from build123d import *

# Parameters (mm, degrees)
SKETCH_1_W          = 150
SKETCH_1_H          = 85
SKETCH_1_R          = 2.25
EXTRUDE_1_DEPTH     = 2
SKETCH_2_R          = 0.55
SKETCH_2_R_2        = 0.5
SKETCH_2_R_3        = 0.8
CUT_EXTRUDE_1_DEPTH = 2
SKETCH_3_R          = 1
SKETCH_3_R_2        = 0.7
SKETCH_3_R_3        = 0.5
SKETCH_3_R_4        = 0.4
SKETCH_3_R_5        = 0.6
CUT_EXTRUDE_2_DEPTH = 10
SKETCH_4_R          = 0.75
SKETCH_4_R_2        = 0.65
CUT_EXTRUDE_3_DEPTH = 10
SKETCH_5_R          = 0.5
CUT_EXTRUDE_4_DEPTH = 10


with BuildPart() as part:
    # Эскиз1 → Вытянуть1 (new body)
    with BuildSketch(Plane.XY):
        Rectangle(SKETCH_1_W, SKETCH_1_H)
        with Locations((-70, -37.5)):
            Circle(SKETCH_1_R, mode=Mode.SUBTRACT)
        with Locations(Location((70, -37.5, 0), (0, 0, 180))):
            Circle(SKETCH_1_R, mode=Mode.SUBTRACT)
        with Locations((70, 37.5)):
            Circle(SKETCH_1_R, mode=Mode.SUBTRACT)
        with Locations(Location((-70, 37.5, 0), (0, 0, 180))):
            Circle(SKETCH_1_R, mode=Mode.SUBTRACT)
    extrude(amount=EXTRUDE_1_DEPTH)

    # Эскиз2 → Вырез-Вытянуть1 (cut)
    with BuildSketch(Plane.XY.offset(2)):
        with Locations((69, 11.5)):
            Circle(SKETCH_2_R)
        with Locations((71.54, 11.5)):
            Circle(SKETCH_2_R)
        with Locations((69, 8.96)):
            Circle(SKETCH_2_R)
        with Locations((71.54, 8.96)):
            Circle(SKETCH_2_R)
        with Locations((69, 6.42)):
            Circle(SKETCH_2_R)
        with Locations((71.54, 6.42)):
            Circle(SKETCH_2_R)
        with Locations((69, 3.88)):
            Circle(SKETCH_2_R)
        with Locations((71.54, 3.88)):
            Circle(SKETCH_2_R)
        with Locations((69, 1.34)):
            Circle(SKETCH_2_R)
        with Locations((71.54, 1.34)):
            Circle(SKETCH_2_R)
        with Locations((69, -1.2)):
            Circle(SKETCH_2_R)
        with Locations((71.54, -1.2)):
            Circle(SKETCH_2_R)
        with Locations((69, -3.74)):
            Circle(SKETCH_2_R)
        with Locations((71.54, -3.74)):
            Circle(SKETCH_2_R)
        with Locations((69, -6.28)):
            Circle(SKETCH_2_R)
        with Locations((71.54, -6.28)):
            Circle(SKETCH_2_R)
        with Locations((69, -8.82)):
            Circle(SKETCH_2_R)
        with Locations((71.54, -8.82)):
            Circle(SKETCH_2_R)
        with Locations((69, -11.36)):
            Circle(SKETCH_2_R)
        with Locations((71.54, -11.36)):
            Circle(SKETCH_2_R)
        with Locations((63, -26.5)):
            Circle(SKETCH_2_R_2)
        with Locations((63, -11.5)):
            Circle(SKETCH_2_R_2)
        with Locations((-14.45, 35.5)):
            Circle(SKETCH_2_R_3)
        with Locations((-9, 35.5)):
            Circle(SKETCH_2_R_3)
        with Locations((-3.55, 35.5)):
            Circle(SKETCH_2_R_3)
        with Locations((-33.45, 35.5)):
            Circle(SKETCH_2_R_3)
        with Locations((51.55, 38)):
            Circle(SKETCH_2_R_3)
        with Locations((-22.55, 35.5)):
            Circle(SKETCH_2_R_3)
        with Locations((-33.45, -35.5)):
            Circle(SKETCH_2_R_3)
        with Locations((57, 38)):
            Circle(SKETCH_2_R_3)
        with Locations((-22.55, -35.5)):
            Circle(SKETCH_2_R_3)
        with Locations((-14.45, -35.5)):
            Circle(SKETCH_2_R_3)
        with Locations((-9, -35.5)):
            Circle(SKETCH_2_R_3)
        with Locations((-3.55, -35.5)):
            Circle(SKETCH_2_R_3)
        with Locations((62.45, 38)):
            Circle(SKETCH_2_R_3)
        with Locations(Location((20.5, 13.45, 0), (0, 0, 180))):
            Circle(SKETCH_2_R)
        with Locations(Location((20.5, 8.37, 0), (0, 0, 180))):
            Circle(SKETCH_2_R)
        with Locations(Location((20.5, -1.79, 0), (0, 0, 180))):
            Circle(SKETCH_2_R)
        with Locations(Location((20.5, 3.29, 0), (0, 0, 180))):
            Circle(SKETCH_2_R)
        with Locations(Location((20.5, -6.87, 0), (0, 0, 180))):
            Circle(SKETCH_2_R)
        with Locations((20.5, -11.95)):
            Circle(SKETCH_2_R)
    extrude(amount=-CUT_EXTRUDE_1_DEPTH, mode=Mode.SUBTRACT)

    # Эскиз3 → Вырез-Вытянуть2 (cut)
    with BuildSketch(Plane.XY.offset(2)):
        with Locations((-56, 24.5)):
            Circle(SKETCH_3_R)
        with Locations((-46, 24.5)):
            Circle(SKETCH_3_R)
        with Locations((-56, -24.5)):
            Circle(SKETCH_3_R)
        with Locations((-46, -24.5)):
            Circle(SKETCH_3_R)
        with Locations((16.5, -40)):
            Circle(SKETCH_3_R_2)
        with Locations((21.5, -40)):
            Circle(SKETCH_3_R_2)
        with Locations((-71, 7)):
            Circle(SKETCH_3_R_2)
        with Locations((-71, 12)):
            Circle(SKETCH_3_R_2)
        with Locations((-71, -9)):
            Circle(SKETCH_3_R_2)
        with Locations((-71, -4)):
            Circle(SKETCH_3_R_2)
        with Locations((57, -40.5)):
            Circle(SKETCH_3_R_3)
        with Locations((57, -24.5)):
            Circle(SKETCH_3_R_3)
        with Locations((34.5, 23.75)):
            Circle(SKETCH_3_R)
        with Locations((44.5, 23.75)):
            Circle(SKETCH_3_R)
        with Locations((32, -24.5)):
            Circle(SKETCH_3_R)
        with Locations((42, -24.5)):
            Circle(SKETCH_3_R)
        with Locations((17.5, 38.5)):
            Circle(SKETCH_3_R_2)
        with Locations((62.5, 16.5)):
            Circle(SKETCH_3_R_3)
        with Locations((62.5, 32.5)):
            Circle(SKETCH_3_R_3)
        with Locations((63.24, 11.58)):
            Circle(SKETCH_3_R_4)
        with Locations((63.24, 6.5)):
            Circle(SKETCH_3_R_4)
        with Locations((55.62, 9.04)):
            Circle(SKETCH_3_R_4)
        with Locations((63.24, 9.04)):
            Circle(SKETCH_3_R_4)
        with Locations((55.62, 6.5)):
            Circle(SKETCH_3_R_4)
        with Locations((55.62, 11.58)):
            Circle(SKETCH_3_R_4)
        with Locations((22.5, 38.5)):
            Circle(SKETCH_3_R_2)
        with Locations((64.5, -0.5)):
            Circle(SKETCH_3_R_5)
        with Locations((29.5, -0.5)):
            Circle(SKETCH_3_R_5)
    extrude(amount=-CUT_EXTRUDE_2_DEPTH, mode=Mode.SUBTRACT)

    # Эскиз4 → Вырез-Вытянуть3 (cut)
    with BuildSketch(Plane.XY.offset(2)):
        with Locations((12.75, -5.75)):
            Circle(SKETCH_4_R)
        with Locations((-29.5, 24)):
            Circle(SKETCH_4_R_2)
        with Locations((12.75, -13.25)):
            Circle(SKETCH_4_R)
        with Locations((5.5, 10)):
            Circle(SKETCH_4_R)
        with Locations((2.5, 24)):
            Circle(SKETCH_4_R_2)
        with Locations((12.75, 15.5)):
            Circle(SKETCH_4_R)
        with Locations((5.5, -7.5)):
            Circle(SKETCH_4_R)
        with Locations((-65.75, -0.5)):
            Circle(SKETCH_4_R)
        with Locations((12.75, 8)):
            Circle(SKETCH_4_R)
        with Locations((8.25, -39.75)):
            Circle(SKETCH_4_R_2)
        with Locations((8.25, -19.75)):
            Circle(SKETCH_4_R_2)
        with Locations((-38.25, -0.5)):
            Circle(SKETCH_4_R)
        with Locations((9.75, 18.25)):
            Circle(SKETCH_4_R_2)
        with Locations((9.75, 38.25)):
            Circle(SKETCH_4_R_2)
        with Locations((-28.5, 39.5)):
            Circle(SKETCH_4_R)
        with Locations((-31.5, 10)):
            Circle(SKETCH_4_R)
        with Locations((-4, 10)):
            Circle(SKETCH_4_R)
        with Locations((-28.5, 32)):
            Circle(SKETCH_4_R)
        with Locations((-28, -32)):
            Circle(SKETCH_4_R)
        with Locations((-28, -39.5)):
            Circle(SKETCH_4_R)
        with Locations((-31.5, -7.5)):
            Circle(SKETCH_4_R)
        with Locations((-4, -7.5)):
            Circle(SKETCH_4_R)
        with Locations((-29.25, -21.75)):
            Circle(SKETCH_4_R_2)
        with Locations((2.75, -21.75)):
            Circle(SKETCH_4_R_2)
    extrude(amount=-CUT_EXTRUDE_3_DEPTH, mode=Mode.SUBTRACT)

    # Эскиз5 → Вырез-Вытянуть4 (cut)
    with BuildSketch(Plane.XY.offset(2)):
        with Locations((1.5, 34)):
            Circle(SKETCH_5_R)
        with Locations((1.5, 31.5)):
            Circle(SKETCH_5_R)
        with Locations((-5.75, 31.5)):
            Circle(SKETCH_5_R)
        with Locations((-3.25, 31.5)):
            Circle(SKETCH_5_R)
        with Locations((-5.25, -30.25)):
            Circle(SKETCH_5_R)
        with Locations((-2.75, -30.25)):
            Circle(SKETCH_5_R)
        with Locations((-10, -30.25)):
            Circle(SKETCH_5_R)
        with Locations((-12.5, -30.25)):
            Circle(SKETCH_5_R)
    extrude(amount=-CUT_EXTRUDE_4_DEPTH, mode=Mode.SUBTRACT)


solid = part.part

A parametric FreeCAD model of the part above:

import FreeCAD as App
import Part
import Sketcher
from FreeCAD import Vector
Q = App.Units.Quantity


def add_polygon(sketch, points):
    """Adds a closed chain of lines whose ends are joined by coincident constraints."""
    first, n = sketch.GeometryCount, len(points)
    for a, b in zip(points, points[1:] + points[:1]):
        sketch.addGeometry(Part.LineSegment(App.Vector(*a, 0), App.Vector(*b, 0)), False)
    for i in range(n):
        sketch.addConstraint(Sketcher.Constraint("Coincident", first + i, 2, first + (i + 1) % n, 1))

doc = App.newDocument("Part")
params = doc.addObject("Spreadsheet::Sheet", "Params")
for row, (alias, value) in enumerate([
    ("sketch1_diameter", "4.5 mm"),
    ("sketch1_width", "150 mm"),
    ("sketch1_height", "85 mm"),
    ("pad1_length", "2 mm"),
    ("sketch2_diameter", "1 mm"),
    ("sketch2_diameter2", "1.1 mm"),
    ("sketch2_diameter3", "1.6 mm"),
    ("pocket1_length", "2 mm"),
    ("sketch3_diameter", "2 mm"),
    ("sketch3_diameter2", "1 mm"),
    ("sketch3_diameter3", "1.4 mm"),
    ("sketch3_diameter4", "0.8 mm"),
    ("sketch3_diameter5", "1.2 mm"),
    ("pocket2_length", "10 mm"),
    ("sketch4_diameter", "1.5 mm"),
    ("sketch4_diameter2", "1.3 mm"),
    ("pocket3_length", "10 mm"),
    ("sketch5_diameter", "1 mm"),
    ("pocket4_length", "10 mm"),
], start=1):
    params.set(f"A{row}", alias)
    params.set(f"B{row}", "=" + value)
    params.setAlias(f"B{row}", alias)

body = doc.addObject("PartDesign::Body", "Body")

sketch1 = body.newObject("Sketcher::SketchObject", "Sketch")
sketch1.AttachmentSupport = (doc.getObject("XY_Plane"), [""])
sketch1.MapMode = "FlatFace"
add_polygon(sketch1, [(-75, 42.5), (-75, -42.5), (75, -42.5), (75, 42.5)])
sketch1.addGeometry(Part.Circle(Vector(-70, -37.5, 0), Vector(0, 0, 1), 2.2), False)
sketch1.addGeometry(Part.Circle(Vector(70, -37.5, 0), Vector(0, 0, 1), 2.2), False)
sketch1.addGeometry(Part.Circle(Vector(-70, 37.5, 0), Vector(0, 0, 1), 2.2), False)
sketch1.addGeometry(Part.Circle(Vector(70, 37.5, 0), Vector(0, 0, 1), 2.2), False)
sketch1.addConstraint(Sketcher.Constraint("Vertical", 0))
sketch1.addConstraint(Sketcher.Constraint("Horizontal", 1))
sketch1.addConstraint(Sketcher.Constraint("Vertical", 2))
sketch1.addConstraint(Sketcher.Constraint("Horizontal", 3))
sketch1.addConstraint(Sketcher.Constraint("Equal", 4, 5))
sketch1.addConstraint(Sketcher.Constraint("Equal", 5, 6))
sketch1.addConstraint(Sketcher.Constraint("Equal", 6, 7))
sketch1.addConstraint(Sketcher.Constraint("Symmetric", 5, 3, 6, 3, -1, 1))
sketch1.addConstraint(Sketcher.Constraint("Symmetric", 4, 3, 7, 3, -1, 1))
sketch1.addConstraint(Sketcher.Constraint("Symmetric", 0, 2, 2, 2, -1, 1))
sketch1.addConstraint(Sketcher.Constraint("Symmetric", 4, 3, 5, 3, -2))
sketch1.addConstraint(Sketcher.Constraint("Diameter", 4, Q("4.5 mm")))
sketch1.addConstraint(Sketcher.Constraint("DistanceX", 1, 1, 1, 2, Q("150 mm")))
sketch1.addConstraint(Sketcher.Constraint("DistanceY", 0, 2, 0, 1, Q("85 mm")))
sketch1.addConstraint(Sketcher.Constraint("DistanceX", 4, 3, -1, 1, Q("70 mm")))
sketch1.addConstraint(Sketcher.Constraint("DistanceY", 4, 3, 6, 3, Q("75 mm")))
sketch1.setExpression("Constraints[15]", "Params.sketch1_diameter")
sketch1.setExpression("Constraints[16]", "Params.sketch1_width")
sketch1.setExpression("Constraints[17]", "Params.sketch1_height")
pad1 = body.newObject("PartDesign::Pad", "Pad")
pad1.Profile = sketch1
pad1.setExpression("Length", "Params.pad1_length")

sketch2 = body.newObject("Sketcher::SketchObject", "Sketch001")
sketch2.AttachmentSupport = (doc.getObject("XY_Plane"), [""])
sketch2.MapMode = "FlatFace"
sketch2.AttachmentOffset = App.Placement(Vector(0, 0, 2), App.Rotation())
sketch2.addGeometry(Part.Circle(Vector(69, 11.5, 0), Vector(0, 0, 1), 0.6), False)
sketch2.addGeometry(Part.Circle(Vector(71.5, 11.5, 0), Vector(0, 0, 1), 0.6), False)
sketch2.addGeometry(Part.Circle(Vector(69, 9, 0), Vector(0, 0, 1), 0.6), False)
sketch2.addGeometry(Part.Circle(Vector(71.5, 9, 0), Vector(0, 0, 1), 0.6), False)
sketch2.addGeometry(Part.Circle(Vector(69, 6.4, 0), Vector(0, 0, 1), 0.6), False)
sketch2.addGeometry(Part.Circle(Vector(71.5, 6.4, 0), Vector(0, 0, 1), 0.6), False)
sketch2.addGeometry(Part.Circle(Vector(69, 3.9, 0), Vector(0, 0, 1), 0.6), False)
sketch2.addGeometry(Part.Circle(Vector(71.5, 3.9, 0), Vector(0, 0, 1), 0.6), False)
sketch2.addGeometry(Part.Circle(Vector(69, 1.3, 0), Vector(0, 0, 1), 0.6), False)
sketch2.addGeometry(Part.Circle(Vector(71.5, 1.3, 0), Vector(0, 0, 1), 0.6), False)
sketch2.addGeometry(Part.Circle(Vector(69, -1.2, 0), Vector(0, 0, 1), 0.6), False)
sketch2.addGeometry(Part.Circle(Vector(71.5, -1.2, 0), Vector(0, 0, 1), 0.6), False)
sketch2.addGeometry(Part.Circle(Vector(69, -3.7, 0), Vector(0, 0, 1), 0.6), False)
sketch2.addGeometry(Part.Circle(Vector(71.5, -3.7, 0), Vector(0, 0, 1), 0.6), False)
sketch2.addGeometry(Part.Circle(Vector(69, -6.3, 0), Vector(0, 0, 1), 0.6), False)
sketch2.addGeometry(Part.Circle(Vector(71.5, -6.3, 0), Vector(0, 0, 1), 0.6), False)
sketch2.addGeometry(Part.Circle(Vector(69, -8.8, 0), Vector(0, 0, 1), 0.6), False)
sketch2.addGeometry(Part.Circle(Vector(71.5, -8.8, 0), Vector(0, 0, 1), 0.6), False)
sketch2.addGeometry(Part.Circle(Vector(69, -11.4, 0), Vector(0, 0, 1), 0.6), False)
sketch2.addGeometry(Part.Circle(Vector(71.5, -11.4, 0), Vector(0, 0, 1), 0.6), False)
sketch2.addGeometry(Part.Circle(Vector(63, -26.5, 0), Vector(0, 0, 1), 0.5), False)
sketch2.addGeometry(Part.Circle(Vector(63, -11.5, 0), Vector(0, 0, 1), 0.5), False)
sketch2.addGeometry(Part.Circle(Vector(-14.4, 35.5, 0), Vector(0, 0, 1), 0.8), False)
sketch2.addGeometry(Part.Circle(Vector(-9, 35.5, 0), Vector(0, 0, 1), 0.8), False)
sketch2.addGeometry(Part.Circle(Vector(-3.5, 35.5, 0), Vector(0, 0, 1), 0.8), False)
sketch2.addGeometry(Part.Circle(Vector(-33.5, 35.5, 0), Vector(0, 0, 1), 0.8), False)
sketch2.addGeometry(Part.Circle(Vector(51.5, 38, 0), Vector(0, 0, 1), 0.8), False)
sketch2.addGeometry(Part.Circle(Vector(-22.6, 35.5, 0), Vector(0, 0, 1), 0.8), False)
sketch2.addGeometry(Part.Circle(Vector(-33.5, -35.5, 0), Vector(0, 0, 1), 0.8), False)
sketch2.addGeometry(Part.Circle(Vector(57, 38, 0), Vector(0, 0, 1), 0.8), False)
sketch2.addGeometry(Part.Circle(Vector(-22.6, -35.5, 0), Vector(0, 0, 1), 0.8), False)
sketch2.addGeometry(Part.Circle(Vector(-14.4, -35.5, 0), Vector(0, 0, 1), 0.8), False)
sketch2.addGeometry(Part.Circle(Vector(-9, -35.5, 0), Vector(0, 0, 1), 0.8), False)
sketch2.addGeometry(Part.Circle(Vector(-3.5, -35.5, 0), Vector(0, 0, 1), 0.8), False)
sketch2.addGeometry(Part.Circle(Vector(62.5, 38, 0), Vector(0, 0, 1), 0.8), False)
sketch2.addGeometry(Part.Circle(Vector(20.5, 13.4, 0), Vector(0, 0, 1), 0.6), False)
sketch2.addGeometry(Part.Circle(Vector(20.5, 8.4, 0), Vector(0, 0, 1), 0.6), False)
sketch2.addGeometry(Part.Circle(Vector(20.5, -1.8, 0), Vector(0, 0, 1), 0.6), False)
sketch2.addGeometry(Part.Circle(Vector(20.5, 3.3, 0), Vector(0, 0, 1), 0.6), False)
sketch2.addGeometry(Part.Circle(Vector(20.5, -6.9, 0), Vector(0, 0, 1), 0.6), False)
sketch2.addGeometry(Part.Circle(Vector(20.5, -11.9, 0), Vector(0, 0, 1), 0.6), False)
sketch2.addConstraint(Sketcher.Constraint("Equal", 0, 1))
sketch2.addConstraint(Sketcher.Constraint("Equal", 1, 2))
sketch2.addConstraint(Sketcher.Constraint("Equal", 2, 3))
sketch2.addConstraint(Sketcher.Constraint("Equal", 3, 4))
sketch2.addConstraint(Sketcher.Constraint("Equal", 4, 5))
sketch2.addConstraint(Sketcher.Constraint("Equal", 5, 6))
sketch2.addConstraint(Sketcher.Constraint("Equal", 6, 7))
sketch2.addConstraint(Sketcher.Constraint("Equal", 7, 8))
sketch2.addConstraint(Sketcher.Constraint("Equal", 8, 9))
sketch2.addConstraint(Sketcher.Constraint("Equal", 9, 10))
sketch2.addConstraint(Sketcher.Constraint("Equal", 10, 11))
sketch2.addConstraint(Sketcher.Constraint("Equal", 11, 12))
sketch2.addConstraint(Sketcher.Constraint("Equal", 12, 13))
sketch2.addConstraint(Sketcher.Constraint("Equal", 13, 14))
sketch2.addConstraint(Sketcher.Constraint("Equal", 14, 15))
sketch2.addConstraint(Sketcher.Constraint("Equal", 15, 16))
sketch2.addConstraint(Sketcher.Constraint("Equal", 16, 17))
sketch2.addConstraint(Sketcher.Constraint("Equal", 17, 18))
sketch2.addConstraint(Sketcher.Constraint("Equal", 18, 19))
sketch2.addConstraint(Sketcher.Constraint("Equal", 20, 21))
sketch2.addConstraint(Sketcher.Constraint("Equal", 22, 23))
sketch2.addConstraint(Sketcher.Constraint("Equal", 23, 24))
sketch2.addConstraint(Sketcher.Constraint("Equal", 24, 25))
sketch2.addConstraint(Sketcher.Constraint("Equal", 25, 26))
sketch2.addConstraint(Sketcher.Constraint("Equal", 26, 27))
sketch2.addConstraint(Sketcher.Constraint("Equal", 27, 28))
sketch2.addConstraint(Sketcher.Constraint("Equal", 28, 29))
sketch2.addConstraint(Sketcher.Constraint("Equal", 29, 30))
sketch2.addConstraint(Sketcher.Constraint("Equal", 30, 31))
sketch2.addConstraint(Sketcher.Constraint("Equal", 31, 32))
sketch2.addConstraint(Sketcher.Constraint("Equal", 32, 33))
sketch2.addConstraint(Sketcher.Constraint("Equal", 33, 34))
sketch2.addConstraint(Sketcher.Constraint("Equal", 19, 35))
sketch2.addConstraint(Sketcher.Constraint("Equal", 35, 36))
sketch2.addConstraint(Sketcher.Constraint("Equal", 36, 37))
sketch2.addConstraint(Sketcher.Constraint("Equal", 37, 38))
sketch2.addConstraint(Sketcher.Constraint("Equal", 38, 39))
sketch2.addConstraint(Sketcher.Constraint("Equal", 39, 40))
sketch2.addConstraint(Sketcher.Constraint("Symmetric", 25, 3, 28, 3, -1))
sketch2.addConstraint(Sketcher.Constraint("Symmetric", 27, 3, 30, 3, -1))
sketch2.addConstraint(Sketcher.Constraint("Symmetric", 22, 3, 31, 3, -1))
sketch2.addConstraint(Sketcher.Constraint("Symmetric", 23, 3, 32, 3, -1))
sketch2.addConstraint(Sketcher.Constraint("Symmetric", 24, 3, 33, 3, -1))
sketch2.addConstraint(Sketcher.Constraint("Horizontal", 0, 3, 1, 3))
sketch2.addConstraint(Sketcher.Constraint("Horizontal", 2, 3, 3, 3))
sketch2.addConstraint(Sketcher.Constraint("Horizontal", 4, 3, 5, 3))
sketch2.addConstraint(Sketcher.Constraint("Horizontal", 6, 3, 7, 3))
sketch2.addConstraint(Sketcher.Constraint("Horizontal", 8, 3, 9, 3))
sketch2.addConstraint(Sketcher.Constraint("Horizontal", 10, 3, 11, 3))
sketch2.addConstraint(Sketcher.Constraint("Horizontal", 12, 3, 13, 3))
sketch2.addConstraint(Sketcher.Constraint("Horizontal", 14, 3, 15, 3))
sketch2.addConstraint(Sketcher.Constraint("Horizontal", 16, 3, 17, 3))
sketch2.addConstraint(Sketcher.Constraint("Horizontal", 18, 3, 19, 3))
sketch2.addConstraint(Sketcher.Constraint("Horizontal", 22, 3, 23, 3))
sketch2.addConstraint(Sketcher.Constraint("Horizontal", 23, 3, 24, 3))
sketch2.addConstraint(Sketcher.Constraint("Horizontal", 24, 3, 25, 3))
sketch2.addConstraint(Sketcher.Constraint("Horizontal", 25, 3, 27, 3))
sketch2.addConstraint(Sketcher.Constraint("Horizontal", 26, 3, 29, 3))
sketch2.addConstraint(Sketcher.Constraint("Horizontal", 29, 3, 34, 3))
sketch2.addConstraint(Sketcher.Constraint("Vertical", 0, 3, 2, 3))
sketch2.addConstraint(Sketcher.Constraint("Vertical", 1, 3, 3, 3))
sketch2.addConstraint(Sketcher.Constraint("Vertical", 2, 3, 4, 3))
sketch2.addConstraint(Sketcher.Constraint("Vertical", 3, 3, 5, 3))
sketch2.addConstraint(Sketcher.Constraint("Vertical", 4, 3, 6, 3))
sketch2.addConstraint(Sketcher.Constraint("Vertical", 5, 3, 7, 3))
sketch2.addConstraint(Sketcher.Constraint("Vertical", 6, 3, 8, 3))
sketch2.addConstraint(Sketcher.Constraint("Vertical", 7, 3, 9, 3))
sketch2.addConstraint(Sketcher.Constraint("Vertical", 8, 3, 10, 3))
sketch2.addConstraint(Sketcher.Constraint("Vertical", 9, 3, 11, 3))
sketch2.addConstraint(Sketcher.Constraint("Vertical", 10, 3, 12, 3))
sketch2.addConstraint(Sketcher.Constraint("Vertical", 11, 3, 13, 3))
sketch2.addConstraint(Sketcher.Constraint("Vertical", 12, 3, 14, 3))
sketch2.addConstraint(Sketcher.Constraint("Vertical", 13, 3, 15, 3))
sketch2.addConstraint(Sketcher.Constraint("Vertical", 14, 3, 16, 3))
sketch2.addConstraint(Sketcher.Constraint("Vertical", 15, 3, 17, 3))
sketch2.addConstraint(Sketcher.Constraint("Vertical", 16, 3, 18, 3))
sketch2.addConstraint(Sketcher.Constraint("Vertical", 17, 3, 19, 3))
sketch2.addConstraint(Sketcher.Constraint("Vertical", 20, 3, 21, 3))
sketch2.addConstraint(Sketcher.Constraint("Vertical", 35, 3, 36, 3))
sketch2.addConstraint(Sketcher.Constraint("Vertical", 36, 3, 37, 3))
sketch2.addConstraint(Sketcher.Constraint("Vertical", 37, 3, 38, 3))
sketch2.addConstraint(Sketcher.Constraint("Vertical", 38, 3, 39, 3))
sketch2.addConstraint(Sketcher.Constraint("Vertical", 39, 3, 40, 3))
sketch2.addConstraint(Sketcher.Constraint("Diameter", 20, Q("1 mm")))
sketch2.addConstraint(Sketcher.Constraint("Diameter", 0, Q("1.1 mm")))
sketch2.addConstraint(Sketcher.Constraint("Diameter", 22, Q("1.6 mm")))
sketch2.addConstraint(Sketcher.Constraint("DistanceX", -1, 1, 0, 3, Q("69 mm")))
sketch2.addConstraint(Sketcher.Constraint("DistanceX", -1, 1, 20, 3, Q("63 mm")))
sketch2.addConstraint(Sketcher.Constraint("DistanceX", 23, 3, -1, 1, Q("9 mm")))
sketch2.addConstraint(Sketcher.Constraint("DistanceY", -1, 1, 26, 3, Q("38 mm")))
sketch2.addConstraint(Sketcher.Constraint("DistanceX", -1, 1, 29, 3, Q("57 mm")))
sketch2.addConstraint(Sketcher.Constraint("DistanceY", 0, 3, 22, 3, Q("24 mm")))
sketch2.addConstraint(Sketcher.Constraint("DistanceX", 25, 3, 22, 3, Q("19 mm")))
sketch2.addConstraint(Sketcher.Constraint("DistanceX", 27, 3, 24, 3, Q("19 mm")))
sketch2.addConstraint(Sketcher.Constraint("DistanceY", 28, 3, 25, 3, Q("71 mm")))
sketch2.addConstraint(Sketcher.Constraint("DistanceY", 33, 3, 20, 3, Q("9 mm")))
sketch2.addConstraint(Sketcher.Constraint("DistanceY", 10, 3, -1, 1, Q("1.2 mm")))
sketch2.addConstraint(Sketcher.Constraint("DistanceY", 21, 3, -1, 1, Q("11.5 mm")))
sketch2.addConstraint(Sketcher.Constraint("DistanceX", -1, 1, 35, 3, Q("20.5 mm")))
sketch2.addConstraint(Sketcher.Constraint("DistanceX", 22, 3, 24, 3, Q("10.9 mm")))
sketch2.addConstraint(Sketcher.Constraint("DistanceX", 27, 3, 26, 3, Q("74.1 mm")))
sketch2.addConstraint(Sketcher.Constraint("DistanceX", 26, 3, 34, 3, Q("10.9 mm")))
sketch2.addConstraint(Sketcher.Constraint("DistanceY", 40, 3, 35, 3, Q("25.4 mm")))
sketch2.addConstraint(Sketcher.Constraint("DistanceX", -1, 1, 1, 3, Q("71.54 mm")))
sketch2.addConstraint(Sketcher.Constraint("DistanceY", -1, 1, 2, 3, Q("8.96 mm")))
sketch2.addConstraint(Sketcher.Constraint("DistanceY", -1, 1, 4, 3, Q("6.42 mm")))
sketch2.addConstraint(Sketcher.Constraint("DistanceY", -1, 1, 6, 3, Q("3.88 mm")))
sketch2.addConstraint(Sketcher.Constraint("DistanceY", -1, 1, 8, 3, Q("1.34 mm")))
sketch2.addConstraint(Sketcher.Constraint("DistanceY", 12, 3, -1, 1, Q("3.74 mm")))
sketch2.addConstraint(Sketcher.Constraint("DistanceY", 14, 3, -1, 1, Q("6.28 mm")))
sketch2.addConstraint(Sketcher.Constraint("DistanceY", 16, 3, -1, 1, Q("8.82 mm")))
sketch2.addConstraint(Sketcher.Constraint("DistanceY", 18, 3, -1, 1, Q("11.36 mm")))
sketch2.addConstraint(Sketcher.Constraint("DistanceX", 22, 3, -1, 1, Q("14.45 mm")))
sketch2.addConstraint(Sketcher.Constraint("DistanceY", -1, 1, 35, 3, Q("13.45 mm")))
sketch2.addConstraint(Sketcher.Constraint("DistanceY", -1, 1, 36, 3, Q("8.37 mm")))
sketch2.addConstraint(Sketcher.Constraint("DistanceY", 37, 3, -1, 1, Q("1.79 mm")))
sketch2.addConstraint(Sketcher.Constraint("DistanceY", -1, 1, 38, 3, Q("3.29 mm")))
sketch2.addConstraint(Sketcher.Constraint("DistanceY", 39, 3, -1, 1, Q("6.87 mm")))
sketch2.setExpression("Constraints[83]", "Params.sketch2_diameter")
sketch2.setExpression("Constraints[84]", "Params.sketch2_diameter2")
sketch2.setExpression("Constraints[85]", "Params.sketch2_diameter3")
pocket1 = body.newObject("PartDesign::Pocket", "Pocket")
pocket1.Profile = sketch2
pocket1.setExpression("Length", "Params.pocket1_length")

sketch3 = body.newObject("Sketcher::SketchObject", "Sketch002")
sketch3.AttachmentSupport = (doc.getObject("XY_Plane"), [""])
sketch3.MapMode = "FlatFace"
sketch3.AttachmentOffset = App.Placement(Vector(0, 0, 2), App.Rotation())
sketch3.addGeometry(Part.Circle(Vector(-56, 24.5, 0), Vector(0, 0, 1), 1), False)
sketch3.addGeometry(Part.Circle(Vector(-46, 24.5, 0), Vector(0, 0, 1), 1), False)
sketch3.addGeometry(Part.Circle(Vector(-56, -24.5, 0), Vector(0, 0, 1), 1), False)
sketch3.addGeometry(Part.Circle(Vector(-46, -24.5, 0), Vector(0, 0, 1), 1), False)
sketch3.addGeometry(Part.Circle(Vector(16.5, -40, 0), Vector(0, 0, 1), 0.7), False)
sketch3.addGeometry(Part.Circle(Vector(21.5, -40, 0), Vector(0, 0, 1), 0.7), False)
sketch3.addGeometry(Part.Circle(Vector(-71, 7, 0), Vector(0, 0, 1), 0.7), False)
sketch3.addGeometry(Part.Circle(Vector(-71, 12, 0), Vector(0, 0, 1), 0.7), False)
sketch3.addGeometry(Part.Circle(Vector(-71, -9, 0), Vector(0, 0, 1), 0.7), False)
sketch3.addGeometry(Part.Circle(Vector(-71, -4, 0), Vector(0, 0, 1), 0.7), False)
sketch3.addGeometry(Part.Circle(Vector(57, -40.5, 0), Vector(0, 0, 1), 0.5), False)
sketch3.addGeometry(Part.Circle(Vector(57, -24.5, 0), Vector(0, 0, 1), 0.5), False)
sketch3.addGeometry(Part.Circle(Vector(34.5, 23.75, 0), Vector(0, 0, 1), 1), False)
sketch3.addGeometry(Part.Circle(Vector(44.5, 23.75, 0), Vector(0, 0, 1), 1), False)
sketch3.addGeometry(Part.Circle(Vector(32, -24.5, 0), Vector(0, 0, 1), 1), False)
sketch3.addGeometry(Part.Circle(Vector(42, -24.5, 0), Vector(0, 0, 1), 1), False)
sketch3.addGeometry(Part.Circle(Vector(17.5, 38.5, 0), Vector(0, 0, 1), 0.7), False)
sketch3.addGeometry(Part.Circle(Vector(62.5, 16.5, 0), Vector(0, 0, 1), 0.5), False)
sketch3.addGeometry(Part.Circle(Vector(62.5, 32.5, 0), Vector(0, 0, 1), 0.5), False)
sketch3.addGeometry(Part.Circle(Vector(63.24, 11.58, 0), Vector(0, 0, 1), 0.4), False)
sketch3.addGeometry(Part.Circle(Vector(63.24, 6.5, 0), Vector(0, 0, 1), 0.4), False)
sketch3.addGeometry(Part.Circle(Vector(55.62, 9.04, 0), Vector(0, 0, 1), 0.4), False)
sketch3.addGeometry(Part.Circle(Vector(63.24, 9.04, 0), Vector(0, 0, 1), 0.4), False)
sketch3.addGeometry(Part.Circle(Vector(55.62, 6.5, 0), Vector(0, 0, 1), 0.4), False)
sketch3.addGeometry(Part.Circle(Vector(55.62, 11.58, 0), Vector(0, 0, 1), 0.4), False)
sketch3.addGeometry(Part.Circle(Vector(22.5, 38.5, 0), Vector(0, 0, 1), 0.7), False)
sketch3.addGeometry(Part.Circle(Vector(64.5, -0.5, 0), Vector(0, 0, 1), 0.6), False)
sketch3.addGeometry(Part.Circle(Vector(29.5, -0.5, 0), Vector(0, 0, 1), 0.6), False)
sketch3.addConstraint(Sketcher.Constraint("Equal", 0, 1))
sketch3.addConstraint(Sketcher.Constraint("Equal", 1, 2))
sketch3.addConstraint(Sketcher.Constraint("Equal", 2, 3))
sketch3.addConstraint(Sketcher.Constraint("Equal", 4, 5))
sketch3.addConstraint(Sketcher.Constraint("Equal", 5, 6))
sketch3.addConstraint(Sketcher.Constraint("Equal", 6, 7))
sketch3.addConstraint(Sketcher.Constraint("Equal", 7, 8))
sketch3.addConstraint(Sketcher.Constraint("Equal", 8, 9))
sketch3.addConstraint(Sketcher.Constraint("Equal", 10, 11))
sketch3.addConstraint(Sketcher.Constraint("Equal", 3, 12))
sketch3.addConstraint(Sketcher.Constraint("Equal", 12, 13))
sketch3.addConstraint(Sketcher.Constraint("Equal", 13, 14))
sketch3.addConstraint(Sketcher.Constraint("Equal", 14, 15))
sketch3.addConstraint(Sketcher.Constraint("Equal", 9, 16))
sketch3.addConstraint(Sketcher.Constraint("Equal", 11, 17))
sketch3.addConstraint(Sketcher.Constraint("Equal", 17, 18))
sketch3.addConstraint(Sketcher.Constraint("Equal", 19, 20))
sketch3.addConstraint(Sketcher.Constraint("Equal", 20, 21))
sketch3.addConstraint(Sketcher.Constraint("Equal", 21, 22))
sketch3.addConstraint(Sketcher.Constraint("Equal", 22, 23))
sketch3.addConstraint(Sketcher.Constraint("Equal", 23, 24))
sketch3.addConstraint(Sketcher.Constraint("Equal", 16, 25))
sketch3.addConstraint(Sketcher.Constraint("Equal", 26, 27))
sketch3.addConstraint(Sketcher.Constraint("Symmetric", 0, 3, 2, 3, -1))
sketch3.addConstraint(Sketcher.Constraint("Symmetric", 1, 3, 3, 3, -1))
sketch3.addConstraint(Sketcher.Constraint("Horizontal", 0, 3, 1, 3))
sketch3.addConstraint(Sketcher.Constraint("Horizontal", 4, 3, 5, 3))
sketch3.addConstraint(Sketcher.Constraint("Horizontal", 3, 3, 11, 3))
sketch3.addConstraint(Sketcher.Constraint("Horizontal", 12, 3, 13, 3))
sketch3.addConstraint(Sketcher.Constraint("Horizontal", 11, 3, 14, 3))
sketch3.addConstraint(Sketcher.Constraint("Horizontal", 14, 3, 15, 3))
sketch3.addConstraint(Sketcher.Constraint("Horizontal", 21, 3, 22, 3))
sketch3.addConstraint(Sketcher.Constraint("Horizontal", 20, 3, 23, 3))
sketch3.addConstraint(Sketcher.Constraint("Horizontal", 19, 3, 24, 3))
sketch3.addConstraint(Sketcher.Constraint("Horizontal", 16, 3, 25, 3))
sketch3.addConstraint(Sketcher.Constraint("Horizontal", 26, 3, 27, 3))
sketch3.addConstraint(Sketcher.Constraint("Vertical", 6, 3, 7, 3))
sketch3.addConstraint(Sketcher.Constraint("Vertical", 7, 3, 8, 3))
sketch3.addConstraint(Sketcher.Constraint("Vertical", 8, 3, 9, 3))
sketch3.addConstraint(Sketcher.Constraint("Vertical", 10, 3, 11, 3))
sketch3.addConstraint(Sketcher.Constraint("Vertical", 17, 3, 18, 3))
sketch3.addConstraint(Sketcher.Constraint("Vertical", 19, 3, 20, 3))
sketch3.addConstraint(Sketcher.Constraint("Vertical", 20, 3, 22, 3))
sketch3.addConstraint(Sketcher.Constraint("Vertical", 21, 3, 23, 3))
sketch3.addConstraint(Sketcher.Constraint("Vertical", 23, 3, 24, 3))
sketch3.addConstraint(Sketcher.Constraint("Diameter", 0, Q("2 mm")))
sketch3.addConstraint(Sketcher.Constraint("Diameter", 10, Q("1 mm")))
sketch3.addConstraint(Sketcher.Constraint("Diameter", 4, Q("1.4 mm")))
sketch3.addConstraint(Sketcher.Constraint("Diameter", 19, Q("0.8 mm")))
sketch3.addConstraint(Sketcher.Constraint("Diameter", 26, Q("1.2 mm")))
sketch3.addConstraint(Sketcher.Constraint("DistanceX", 0, 3, -1, 1, Q("56 mm")))
sketch3.addConstraint(Sketcher.Constraint("DistanceX", 1, 3, -1, 1, Q("46 mm")))
sketch3.addConstraint(Sketcher.Constraint("DistanceY", 4, 3, -1, 1, Q("40 mm")))
sketch3.addConstraint(Sketcher.Constraint("DistanceX", 6, 3, -1, 1, Q("71 mm")))
sketch3.addConstraint(Sketcher.Constraint("DistanceY", -1, 1, 6, 3, Q("7 mm")))
sketch3.addConstraint(Sketcher.Constraint("DistanceY", -1, 1, 7, 3, Q("12 mm")))
sketch3.addConstraint(Sketcher.Constraint("DistanceY", 8, 3, -1, 1, Q("9 mm")))
sketch3.addConstraint(Sketcher.Constraint("DistanceY", 9, 3, -1, 1, Q("4 mm")))
sketch3.addConstraint(Sketcher.Constraint("DistanceX", -1, 1, 10, 3, Q("57 mm")))
sketch3.addConstraint(Sketcher.Constraint("DistanceX", -1, 1, 14, 3, Q("32 mm")))
sketch3.addConstraint(Sketcher.Constraint("DistanceX", -1, 1, 15, 3, Q("42 mm")))
sketch3.addConstraint(Sketcher.Constraint("DistanceY", 2, 3, 0, 3, Q("49 mm")))
sketch3.addConstraint(Sketcher.Constraint("DistanceX", 4, 3, 5, 3, Q("5 mm")))
sketch3.addConstraint(Sketcher.Constraint("DistanceY", 10, 3, 3, 3, Q("16 mm")))
sketch3.addConstraint(Sketcher.Constraint("DistanceX", 5, 3, 12, 3, Q("13 mm")))
sketch3.addConstraint(Sketcher.Constraint("DistanceX", 12, 3, 13, 3, Q("10 mm")))
sketch3.addConstraint(Sketcher.Constraint("DistanceX", 16, 3, 12, 3, Q("17 mm")))
sketch3.addConstraint(Sketcher.Constraint("DistanceY", 14, 3, 16, 3, Q("63 mm")))
sketch3.addConstraint(Sketcher.Constraint("DistanceX", 13, 3, 17, 3, Q("18 mm")))
sketch3.addConstraint(Sketcher.Constraint("DistanceY", 11, 3, 17, 3, Q("41 mm")))
sketch3.addConstraint(Sketcher.Constraint("DistanceY", 17, 3, 18, 3, Q("16 mm")))
sketch3.addConstraint(Sketcher.Constraint("DistanceY", 20, 3, 17, 3, Q("10 mm")))
sketch3.addConstraint(Sketcher.Constraint("DistanceX", 16, 3, 25, 3, Q("5 mm")))
sketch3.addConstraint(Sketcher.Constraint("DistanceY", 26, 3, 20, 3, Q("7 mm")))
sketch3.addConstraint(Sketcher.Constraint("DistanceX", 27, 3, 12, 3, Q("5 mm")))
sketch3.addConstraint(Sketcher.Constraint("DistanceX", -1, 1, 4, 3, Q("16.5 mm")))
sketch3.addConstraint(Sketcher.Constraint("DistanceX", -1, 1, 26, 3, Q("64.5 mm")))
sketch3.addConstraint(Sketcher.Constraint("DistanceY", -1, 1, 12, 3, Q("23.75 mm")))
sketch3.addConstraint(Sketcher.Constraint("DistanceX", -1, 1, 19, 3, Q("63.24 mm")))
sketch3.addConstraint(Sketcher.Constraint("DistanceY", -1, 1, 19, 3, Q("11.58 mm")))
sketch3.addConstraint(Sketcher.Constraint("DistanceX", -1, 1, 21, 3, Q("55.62 mm")))
sketch3.addConstraint(Sketcher.Constraint("DistanceY", -1, 1, 21, 3, Q("9.04 mm")))
sketch3.setExpression("Constraints[45]", "Params.sketch3_diameter")
sketch3.setExpression("Constraints[46]", "Params.sketch3_diameter2")
sketch3.setExpression("Constraints[47]", "Params.sketch3_diameter3")
sketch3.setExpression("Constraints[48]", "Params.sketch3_diameter4")
sketch3.setExpression("Constraints[49]", "Params.sketch3_diameter5")
pocket2 = body.newObject("PartDesign::Pocket", "Pocket001")
pocket2.Profile = sketch3
pocket2.setExpression("Length", "Params.pocket2_length")

sketch4 = body.newObject("Sketcher::SketchObject", "Sketch003")
sketch4.AttachmentSupport = (doc.getObject("XY_Plane"), [""])
sketch4.MapMode = "FlatFace"
sketch4.AttachmentOffset = App.Placement(Vector(0, 0, 2), App.Rotation())
sketch4.addGeometry(Part.Circle(Vector(12.8, -5.8, 0), Vector(0, 0, 1), 0.8), False)
sketch4.addGeometry(Part.Circle(Vector(-29.5, 24, 0), Vector(0, 0, 1), 0.7), False)
sketch4.addGeometry(Part.Circle(Vector(12.8, -13.2, 0), Vector(0, 0, 1), 0.8), False)
sketch4.addGeometry(Part.Circle(Vector(5.5, 10, 0), Vector(0, 0, 1), 0.8), False)
sketch4.addGeometry(Part.Circle(Vector(2.5, 24, 0), Vector(0, 0, 1), 0.7), False)
sketch4.addGeometry(Part.Circle(Vector(12.8, 15.5, 0), Vector(0, 0, 1), 0.8), False)
sketch4.addGeometry(Part.Circle(Vector(5.5, -7.5, 0), Vector(0, 0, 1), 0.8), False)
sketch4.addGeometry(Part.Circle(Vector(-65.8, -0.5, 0), Vector(0, 0, 1), 0.8), False)
sketch4.addGeometry(Part.Circle(Vector(12.8, 8, 0), Vector(0, 0, 1), 0.8), False)
sketch4.addGeometry(Part.Circle(Vector(8.2, -39.8, 0), Vector(0, 0, 1), 0.7), False)
sketch4.addGeometry(Part.Circle(Vector(8.2, -19.8, 0), Vector(0, 0, 1), 0.7), False)
sketch4.addGeometry(Part.Circle(Vector(-38.2, -0.5, 0), Vector(0, 0, 1), 0.8), False)
sketch4.addGeometry(Part.Circle(Vector(9.8, 18.2, 0), Vector(0, 0, 1), 0.7), False)
sketch4.addGeometry(Part.Circle(Vector(9.8, 38.2, 0), Vector(0, 0, 1), 0.7), False)
sketch4.addGeometry(Part.Circle(Vector(-28.5, 39.5, 0), Vector(0, 0, 1), 0.8), False)
sketch4.addGeometry(Part.Circle(Vector(-31.5, 10, 0), Vector(0, 0, 1), 0.8), False)
sketch4.addGeometry(Part.Circle(Vector(-4, 10, 0), Vector(0, 0, 1), 0.8), False)
sketch4.addGeometry(Part.Circle(Vector(-28.5, 32, 0), Vector(0, 0, 1), 0.8), False)
sketch4.addGeometry(Part.Circle(Vector(-28, -32, 0), Vector(0, 0, 1), 0.8), False)
sketch4.addGeometry(Part.Circle(Vector(-28, -39.5, 0), Vector(0, 0, 1), 0.8), False)
sketch4.addGeometry(Part.Circle(Vector(-31.5, -7.5, 0), Vector(0, 0, 1), 0.8), False)
sketch4.addGeometry(Part.Circle(Vector(-4, -7.5, 0), Vector(0, 0, 1), 0.8), False)
sketch4.addGeometry(Part.Circle(Vector(-29.2, -21.8, 0), Vector(0, 0, 1), 0.7), False)
sketch4.addGeometry(Part.Circle(Vector(2.8, -21.8, 0), Vector(0, 0, 1), 0.7), False)
sketch4.addConstraint(Sketcher.Constraint("Equal", 0, 2))
sketch4.addConstraint(Sketcher.Constraint("Equal", 2, 3))
sketch4.addConstraint(Sketcher.Constraint("Equal", 1, 4))
sketch4.addConstraint(Sketcher.Constraint("Equal", 3, 5))
sketch4.addConstraint(Sketcher.Constraint("Equal", 5, 6))
sketch4.addConstraint(Sketcher.Constraint("Equal", 6, 7))
sketch4.addConstraint(Sketcher.Constraint("Equal", 7, 8))
sketch4.addConstraint(Sketcher.Constraint("Equal", 4, 9))
sketch4.addConstraint(Sketcher.Constraint("Equal", 9, 10))
sketch4.addConstraint(Sketcher.Constraint("Equal", 8, 11))
sketch4.addConstraint(Sketcher.Constraint("Equal", 10, 12))
sketch4.addConstraint(Sketcher.Constraint("Equal", 12, 13))
sketch4.addConstraint(Sketcher.Constraint("Equal", 11, 14))
sketch4.addConstraint(Sketcher.Constraint("Equal", 14, 15))
sketch4.addConstraint(Sketcher.Constraint("Equal", 15, 16))
sketch4.addConstraint(Sketcher.Constraint("Equal", 16, 17))
sketch4.addConstraint(Sketcher.Constraint("Equal", 17, 18))
sketch4.addConstraint(Sketcher.Constraint("Equal", 18, 19))
sketch4.addConstraint(Sketcher.Constraint("Equal", 19, 20))
sketch4.addConstraint(Sketcher.Constraint("Equal", 20, 21))
sketch4.addConstraint(Sketcher.Constraint("Equal", 13, 22))
sketch4.addConstraint(Sketcher.Constraint("Equal", 22, 23))
sketch4.addConstraint(Sketcher.Constraint("Horizontal", 1, 3, 4, 3))
sketch4.addConstraint(Sketcher.Constraint("Horizontal", 7, 3, 11, 3))
sketch4.addConstraint(Sketcher.Constraint("Horizontal", 3, 3, 15, 3))
sketch4.addConstraint(Sketcher.Constraint("Horizontal", 15, 3, 16, 3))
sketch4.addConstraint(Sketcher.Constraint("Horizontal", 6, 3, 20, 3))
sketch4.addConstraint(Sketcher.Constraint("Horizontal", 20, 3, 21, 3))
sketch4.addConstraint(Sketcher.Constraint("Horizontal", 22, 3, 23, 3))
sketch4.addConstraint(Sketcher.Constraint("Vertical", 0, 3, 2, 3))
sketch4.addConstraint(Sketcher.Constraint("Vertical", 2, 3, 5, 3))
sketch4.addConstraint(Sketcher.Constraint("Vertical", 3, 3, 6, 3))
sketch4.addConstraint(Sketcher.Constraint("Vertical", 5, 3, 8, 3))
sketch4.addConstraint(Sketcher.Constraint("Vertical", 9, 3, 10, 3))
sketch4.addConstraint(Sketcher.Constraint("Vertical", 12, 3, 13, 3))
sketch4.addConstraint(Sketcher.Constraint("Vertical", 14, 3, 17, 3))
sketch4.addConstraint(Sketcher.Constraint("Vertical", 18, 3, 19, 3))
sketch4.addConstraint(Sketcher.Constraint("Vertical", 15, 3, 20, 3))
sketch4.addConstraint(Sketcher.Constraint("Vertical", 16, 3, 21, 3))
sketch4.addConstraint(Sketcher.Constraint("Diameter", 0, Q("1.5 mm")))
sketch4.addConstraint(Sketcher.Constraint("Diameter", 1, Q("1.3 mm")))
sketch4.addConstraint(Sketcher.Constraint("DistanceY", -1, 1, 1, 3, Q("24 mm")))
sketch4.addConstraint(Sketcher.Constraint("DistanceY", -1, 1, 3, 3, Q("10 mm")))
sketch4.addConstraint(Sketcher.Constraint("DistanceY", -1, 1, 8, 3, Q("8 mm")))
sketch4.addConstraint(Sketcher.Constraint("DistanceX", 16, 3, -1, 1, Q("4 mm")))
sketch4.addConstraint(Sketcher.Constraint("DistanceY", -1, 1, 17, 3, Q("32 mm")))
sketch4.addConstraint(Sketcher.Constraint("DistanceX", 18, 3, -1, 1, Q("28 mm")))
sketch4.addConstraint(Sketcher.Constraint("DistanceY", 18, 3, -1, 1, Q("32 mm")))
sketch4.addConstraint(Sketcher.Constraint("DistanceX", 1, 3, 3, 3, Q("35 mm")))
sketch4.addConstraint(Sketcher.Constraint("DistanceX", 4, 3, 3, 3, Q("3 mm")))
sketch4.addConstraint(Sketcher.Constraint("DistanceY", 6, 3, 5, 3, Q("23 mm")))
sketch4.addConstraint(Sketcher.Constraint("DistanceY", 6, 3, 7, 3, Q("7 mm")))
sketch4.addConstraint(Sketcher.Constraint("DistanceY", 9, 3, 0, 3, Q("34 mm")))
sketch4.addConstraint(Sketcher.Constraint("DistanceY", 10, 3, 0, 3, Q("14 mm")))
sketch4.addConstraint(Sketcher.Constraint("DistanceX", 12, 3, 5, 3, Q("3 mm")))
sketch4.addConstraint(Sketcher.Constraint("DistanceY", 0, 3, 12, 3, Q("24 mm")))
sketch4.addConstraint(Sketcher.Constraint("DistanceY", 12, 3, 13, 3, Q("20 mm")))
sketch4.addConstraint(Sketcher.Constraint("DistanceX", 1, 3, 14, 3, Q("1 mm")))
sketch4.addConstraint(Sketcher.Constraint("DistanceY", 11, 3, 14, 3, Q("40 mm")))
sketch4.addConstraint(Sketcher.Constraint("DistanceX", 15, 3, 1, 3, Q("2 mm")))
sketch4.addConstraint(Sketcher.Constraint("DistanceY", 19, 3, 11, 3, Q("39 mm")))
sketch4.addConstraint(Sketcher.Constraint("DistanceX", 11, 3, 22, 3, Q("9 mm")))
sketch4.addConstraint(Sketcher.Constraint("DistanceY", 23, 3, 10, 3, Q("2 mm")))
sketch4.addConstraint(Sketcher.Constraint("DistanceX", 23, 3, 2, 3, Q("10 mm")))
sketch4.addConstraint(Sketcher.Constraint("DistanceX", 1, 3, -1, 1, Q("29.5 mm")))
sketch4.addConstraint(Sketcher.Constraint("DistanceY", -1, 1, 5, 3, Q("15.5 mm")))
sketch4.addConstraint(Sketcher.Constraint("DistanceY", 2, 3, 0, 3, Q("7.5 mm")))
sketch4.addConstraint(Sketcher.Constraint("DistanceX", 7, 3, 0, 3, Q("78.5 mm")))
sketch4.addConstraint(Sketcher.Constraint("DistanceX", 9, 3, 2, 3, Q("4.5 mm")))
sketch4.addConstraint(Sketcher.Constraint("DistanceX", 7, 3, 11, 3, Q("27.5 mm")))
sketch4.addConstraint(Sketcher.Constraint("DistanceX", -1, 1, 0, 3, Q("12.75 mm")))
sketch4.addConstraint(Sketcher.Constraint("DistanceY", 0, 3, -1, 1, Q("5.75 mm")))
sketch4.setExpression("Constraints[39]", "Params.sketch4_diameter")
sketch4.setExpression("Constraints[40]", "Params.sketch4_diameter2")
pocket3 = body.newObject("PartDesign::Pocket", "Pocket002")
pocket3.Profile = sketch4
pocket3.setExpression("Length", "Params.pocket3_length")

sketch5 = body.newObject("Sketcher::SketchObject", "Sketch004")
sketch5.AttachmentSupport = (doc.getObject("XY_Plane"), [""])
sketch5.MapMode = "FlatFace"
sketch5.AttachmentOffset = App.Placement(Vector(0, 0, 2), App.Rotation())
sketch5.addGeometry(Part.Circle(Vector(1.5, 34, 0), Vector(0, 0, 1), 0.5), False)
sketch5.addGeometry(Part.Circle(Vector(1.5, 31.5, 0), Vector(0, 0, 1), 0.5), False)
sketch5.addGeometry(Part.Circle(Vector(-5.8, 31.5, 0), Vector(0, 0, 1), 0.5), False)
sketch5.addGeometry(Part.Circle(Vector(-3.2, 31.5, 0), Vector(0, 0, 1), 0.5), False)
sketch5.addGeometry(Part.Circle(Vector(-5.2, -30.2, 0), Vector(0, 0, 1), 0.5), False)
sketch5.addGeometry(Part.Circle(Vector(-2.8, -30.2, 0), Vector(0, 0, 1), 0.5), False)
sketch5.addGeometry(Part.Circle(Vector(-10, -30.2, 0), Vector(0, 0, 1), 0.5), False)
sketch5.addGeometry(Part.Circle(Vector(-12.5, -30.2, 0), Vector(0, 0, 1), 0.5), False)
sketch5.addConstraint(Sketcher.Constraint("Equal", 0, 1))
sketch5.addConstraint(Sketcher.Constraint("Equal", 1, 2))
sketch5.addConstraint(Sketcher.Constraint("Equal", 2, 3))
sketch5.addConstraint(Sketcher.Constraint("Equal", 3, 4))
sketch5.addConstraint(Sketcher.Constraint("Equal", 4, 5))
sketch5.addConstraint(Sketcher.Constraint("Equal", 5, 6))
sketch5.addConstraint(Sketcher.Constraint("Equal", 6, 7))
sketch5.addConstraint(Sketcher.Constraint("Horizontal", 1, 3, 2, 3))
sketch5.addConstraint(Sketcher.Constraint("Horizontal", 2, 3, 3, 3))
sketch5.addConstraint(Sketcher.Constraint("Horizontal", 4, 3, 5, 3))
sketch5.addConstraint(Sketcher.Constraint("Horizontal", 5, 3, 6, 3))
sketch5.addConstraint(Sketcher.Constraint("Horizontal", 6, 3, 7, 3))
sketch5.addConstraint(Sketcher.Constraint("Vertical", 0, 3, 1, 3))
sketch5.addConstraint(Sketcher.Constraint("Diameter", 0, Q("1 mm")))
sketch5.addConstraint(Sketcher.Constraint("DistanceY", -1, 1, 0, 3, Q("34 mm")))
sketch5.addConstraint(Sketcher.Constraint("DistanceX", 6, 3, -1, 1, Q("10 mm")))
sketch5.addConstraint(Sketcher.Constraint("DistanceX", 4, 3, 3, 3, Q("2 mm")))
sketch5.addConstraint(Sketcher.Constraint("DistanceX", 2, 3, 5, 3, Q("3 mm")))
sketch5.addConstraint(Sketcher.Constraint("DistanceX", -1, 1, 0, 3, Q("1.5 mm")))
sketch5.addConstraint(Sketcher.Constraint("DistanceY", -1, 1, 1, 3, Q("31.5 mm")))
sketch5.addConstraint(Sketcher.Constraint("DistanceX", 7, 3, -1, 1, Q("12.5 mm")))
sketch5.addConstraint(Sketcher.Constraint("DistanceX", 2, 3, 3, 3, Q("2.5 mm")))
sketch5.addConstraint(Sketcher.Constraint("DistanceX", 2, 3, -1, 1, Q("5.75 mm")))
sketch5.addConstraint(Sketcher.Constraint("DistanceY", 4, 3, -1, 1, Q("30.25 mm")))
sketch5.setExpression("Constraints[13]", "Params.sketch5_diameter")
pocket4 = body.newObject("PartDesign::Pocket", "Pocket003")
pocket4.Profile = sketch5
pocket4.setExpression("Length", "Params.pocket4_length")

doc.recompute()
